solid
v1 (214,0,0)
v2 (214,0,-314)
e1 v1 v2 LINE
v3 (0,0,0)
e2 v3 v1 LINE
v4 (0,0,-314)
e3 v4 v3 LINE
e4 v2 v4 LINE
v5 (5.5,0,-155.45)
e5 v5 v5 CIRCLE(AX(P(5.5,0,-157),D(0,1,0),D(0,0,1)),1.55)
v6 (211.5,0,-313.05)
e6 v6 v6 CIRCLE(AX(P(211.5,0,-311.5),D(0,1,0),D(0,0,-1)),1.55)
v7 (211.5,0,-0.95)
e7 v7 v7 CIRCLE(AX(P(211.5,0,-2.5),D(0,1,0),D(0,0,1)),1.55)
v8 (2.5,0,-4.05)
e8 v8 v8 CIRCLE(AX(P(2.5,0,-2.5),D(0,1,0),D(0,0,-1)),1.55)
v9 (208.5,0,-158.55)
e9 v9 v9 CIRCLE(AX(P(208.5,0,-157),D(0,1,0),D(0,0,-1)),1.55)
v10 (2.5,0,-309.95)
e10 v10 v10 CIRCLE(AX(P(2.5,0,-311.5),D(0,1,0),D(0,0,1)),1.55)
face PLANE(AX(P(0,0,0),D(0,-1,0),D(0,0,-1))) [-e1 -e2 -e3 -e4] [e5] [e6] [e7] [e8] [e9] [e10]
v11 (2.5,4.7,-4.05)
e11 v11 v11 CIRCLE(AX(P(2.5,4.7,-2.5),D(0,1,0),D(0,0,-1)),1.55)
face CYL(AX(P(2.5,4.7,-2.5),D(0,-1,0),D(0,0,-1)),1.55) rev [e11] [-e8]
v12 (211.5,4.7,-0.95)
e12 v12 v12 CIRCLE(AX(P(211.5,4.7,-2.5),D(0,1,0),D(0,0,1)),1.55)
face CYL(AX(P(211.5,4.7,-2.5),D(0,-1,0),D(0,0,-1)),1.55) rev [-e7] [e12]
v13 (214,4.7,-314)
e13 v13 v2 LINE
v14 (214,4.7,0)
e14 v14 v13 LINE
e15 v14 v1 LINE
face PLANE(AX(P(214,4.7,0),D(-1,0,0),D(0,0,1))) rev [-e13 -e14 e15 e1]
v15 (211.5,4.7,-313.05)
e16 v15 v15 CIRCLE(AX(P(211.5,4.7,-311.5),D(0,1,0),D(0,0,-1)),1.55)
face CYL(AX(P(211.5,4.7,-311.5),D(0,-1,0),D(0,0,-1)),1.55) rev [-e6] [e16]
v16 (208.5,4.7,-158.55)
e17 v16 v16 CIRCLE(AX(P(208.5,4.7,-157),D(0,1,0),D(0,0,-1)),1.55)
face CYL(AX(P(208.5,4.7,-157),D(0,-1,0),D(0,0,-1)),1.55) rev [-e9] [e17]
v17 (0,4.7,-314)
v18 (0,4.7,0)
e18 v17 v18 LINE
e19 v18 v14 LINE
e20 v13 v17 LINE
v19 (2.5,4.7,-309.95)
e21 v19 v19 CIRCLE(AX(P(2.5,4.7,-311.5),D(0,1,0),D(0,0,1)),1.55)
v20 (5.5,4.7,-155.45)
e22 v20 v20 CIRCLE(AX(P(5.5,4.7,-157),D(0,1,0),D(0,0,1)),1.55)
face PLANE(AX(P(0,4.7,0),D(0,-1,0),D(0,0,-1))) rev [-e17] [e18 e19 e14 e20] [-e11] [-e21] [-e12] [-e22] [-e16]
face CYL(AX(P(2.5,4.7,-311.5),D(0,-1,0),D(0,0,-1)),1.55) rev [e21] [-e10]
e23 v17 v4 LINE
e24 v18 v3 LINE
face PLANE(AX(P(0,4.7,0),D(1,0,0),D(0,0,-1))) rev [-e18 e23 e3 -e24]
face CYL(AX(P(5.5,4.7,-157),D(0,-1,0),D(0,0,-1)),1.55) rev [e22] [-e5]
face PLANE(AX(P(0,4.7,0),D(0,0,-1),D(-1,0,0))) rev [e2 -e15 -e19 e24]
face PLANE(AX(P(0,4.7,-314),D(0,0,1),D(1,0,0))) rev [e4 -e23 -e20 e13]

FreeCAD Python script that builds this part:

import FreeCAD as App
import Part
import Sketcher


def add_polygon(sketch, points):
    """Adds a closed chain of lines whose ends are joined by coincident constraints."""
    first, n = sketch.GeometryCount, len(points)
    for a, b in zip(points, points[1:] + points[:1]):
        sketch.addGeometry(Part.LineSegment(App.Vector(*a, 0), App.Vector(*b, 0)), False)
    for i in range(n):
        sketch.addConstraint(Sketcher.Constraint("Coincident", first + i, 2, first + (i + 1) % n, 1))

doc = App.newDocument("Part")
body = doc.addObject("PartDesign::Body", "Body")

sketch1 = doc.addObject("Sketcher::SketchObject", "Sketch")
body.addObject(sketch1)
sketch1.AttachmentSupport = (doc.XZ_Plane, [""])
sketch1.MapMode = "FlatFace"
add_polygon(sketch1, [(0, -314), (0, 0), (214, 0), (214, -314)])
sketch1.addGeometry(Part.Circle(App.Vector(2.5, -2.5, 0), App.Vector(0, 0, 1), 1.55), False)
sketch1.addGeometry(Part.Circle(App.Vector(5.5, -157, 0), App.Vector(0, 0, 1), 1.55), False)
sketch1.addGeometry(Part.Circle(App.Vector(211.5, -2.5, 0), App.Vector(0, 0, 1), 1.55), False)
sketch1.addGeometry(Part.Circle(App.Vector(208.5, -157, 0), App.Vector(0, 0, 1), 1.55), False)
sketch1.addGeometry(Part.Circle(App.Vector(2.5, -311.5, 0), App.Vector(0, 0, 1), 1.55), False)
sketch1.addGeometry(Part.Circle(App.Vector(211.5, -311.5, 0), App.Vector(0, 0, 1), 1.55), False)
sketch1.addConstraint([
    Sketcher.Constraint("Vertical", 0),
    Sketcher.Constraint("Horizontal", 1),
    Sketcher.Constraint("Vertical", 2),
    Sketcher.Constraint("Horizontal", 3),
    Sketcher.Constraint("Coincident", 0, 2, -1, 1),
    Sketcher.Constraint("Equal", 4, 5),
    Sketcher.Constraint("Equal", 5, 6),
    Sketcher.Constraint("Equal", 6, 7),
    Sketcher.Constraint("Equal", 7, 8),
    Sketcher.Constraint("Equal", 8, 9),
    Sketcher.Constraint("Horizontal", 4, 3, 6, 3),
    Sketcher.Constraint("Horizontal", 5, 3, 7, 3),
    Sketcher.Constraint("Horizontal", 8, 3, 9, 3),
    Sketcher.Constraint("Vertical", 4, 3, 8, 3),
    Sketcher.Constraint("Vertical", 6, 3, 9, 3),
    Sketcher.Constraint("Diameter", 4, 3.1),
    Sketcher.Constraint("DistanceX", 1, 1, 1, 2, 214.0),
    Sketcher.Constraint("DistanceY", 0, 1, 0, 2, 314.0),
    Sketcher.Constraint("DistanceY", 5, 3, -1, 1, 157.0),
    Sketcher.Constraint("DistanceX", 4, 3, 5, 3, 3.0),
    Sketcher.Constraint("DistanceX", 4, 3, 6, 3, 209.0),
    Sketcher.Constraint("DistanceX", 7, 3, 6, 3, 3.0),
    Sketcher.Constraint("DistanceY", 8, 3, 4, 3, 309.0),
    Sketcher.Constraint("DistanceX", -1, 1, 4, 3, 2.5),
    Sketcher.Constraint("DistanceY", 4, 3, -1, 1, 2.5),
])
pad1 = doc.addObject("PartDesign::Pad", "Pad")
body.addObject(pad1)
pad1.Profile = sketch1
pad1.Length = 4.7
pad1.Reversed = True

doc.recompute()
